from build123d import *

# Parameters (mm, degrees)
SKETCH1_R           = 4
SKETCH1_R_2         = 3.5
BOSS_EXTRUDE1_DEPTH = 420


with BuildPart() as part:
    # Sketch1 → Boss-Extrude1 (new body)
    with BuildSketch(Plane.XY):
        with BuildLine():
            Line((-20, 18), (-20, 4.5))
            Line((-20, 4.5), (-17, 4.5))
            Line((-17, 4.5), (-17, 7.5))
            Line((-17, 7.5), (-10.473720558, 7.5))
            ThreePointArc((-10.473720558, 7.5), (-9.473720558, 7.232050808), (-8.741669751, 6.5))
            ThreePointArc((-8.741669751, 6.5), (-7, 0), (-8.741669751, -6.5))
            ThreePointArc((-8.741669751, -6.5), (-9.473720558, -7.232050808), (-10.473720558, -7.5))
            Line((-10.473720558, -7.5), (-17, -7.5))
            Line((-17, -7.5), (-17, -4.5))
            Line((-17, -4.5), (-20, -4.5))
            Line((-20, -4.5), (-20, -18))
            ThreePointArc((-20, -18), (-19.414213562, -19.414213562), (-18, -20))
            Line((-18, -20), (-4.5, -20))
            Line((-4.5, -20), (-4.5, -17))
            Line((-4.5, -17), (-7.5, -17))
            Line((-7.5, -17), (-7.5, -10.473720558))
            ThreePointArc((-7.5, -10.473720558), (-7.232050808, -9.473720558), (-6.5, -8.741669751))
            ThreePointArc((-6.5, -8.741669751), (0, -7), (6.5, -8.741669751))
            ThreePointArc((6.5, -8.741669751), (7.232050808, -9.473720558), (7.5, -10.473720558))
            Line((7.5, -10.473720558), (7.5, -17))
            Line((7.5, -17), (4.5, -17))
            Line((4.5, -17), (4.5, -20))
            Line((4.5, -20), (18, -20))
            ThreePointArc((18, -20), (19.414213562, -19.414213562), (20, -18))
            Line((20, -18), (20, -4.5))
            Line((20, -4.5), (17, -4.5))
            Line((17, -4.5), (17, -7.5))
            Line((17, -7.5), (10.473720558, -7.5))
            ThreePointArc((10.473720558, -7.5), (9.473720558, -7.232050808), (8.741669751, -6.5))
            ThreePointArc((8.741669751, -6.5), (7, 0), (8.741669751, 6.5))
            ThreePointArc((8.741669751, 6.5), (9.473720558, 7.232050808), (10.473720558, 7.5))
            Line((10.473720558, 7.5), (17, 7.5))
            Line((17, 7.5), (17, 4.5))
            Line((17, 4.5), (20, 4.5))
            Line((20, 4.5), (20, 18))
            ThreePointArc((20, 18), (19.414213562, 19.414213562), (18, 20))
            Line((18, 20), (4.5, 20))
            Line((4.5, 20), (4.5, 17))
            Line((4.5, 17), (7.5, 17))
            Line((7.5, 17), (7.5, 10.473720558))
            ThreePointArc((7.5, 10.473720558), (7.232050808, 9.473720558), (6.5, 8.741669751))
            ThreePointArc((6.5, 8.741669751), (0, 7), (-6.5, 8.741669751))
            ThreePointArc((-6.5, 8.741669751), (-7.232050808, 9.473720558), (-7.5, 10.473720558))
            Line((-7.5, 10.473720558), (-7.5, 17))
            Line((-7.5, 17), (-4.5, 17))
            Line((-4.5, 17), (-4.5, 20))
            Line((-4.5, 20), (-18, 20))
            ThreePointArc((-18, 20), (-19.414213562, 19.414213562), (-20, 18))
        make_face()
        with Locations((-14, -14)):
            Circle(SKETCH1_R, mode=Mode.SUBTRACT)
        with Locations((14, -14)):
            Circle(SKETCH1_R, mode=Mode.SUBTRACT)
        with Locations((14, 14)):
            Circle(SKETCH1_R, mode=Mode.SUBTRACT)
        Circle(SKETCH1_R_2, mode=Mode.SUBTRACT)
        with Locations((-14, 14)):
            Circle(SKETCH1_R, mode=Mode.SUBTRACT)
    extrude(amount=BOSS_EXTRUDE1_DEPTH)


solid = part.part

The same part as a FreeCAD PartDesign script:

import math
import FreeCAD as App
import Part
import Sketcher

V = App.Vector

doc = App.newDocument("Part")
params = doc.addObject("Spreadsheet::Sheet", "Params")
for row, (alias, value) in enumerate([
    ("sketch1_diameter", "8 mm"),
    ("sketch1_diameter2", "7 mm"),
    ("sketch1_radius", "2 mm"),
    ("sketch1_radius2", "13 mm"),
    ("sketch1_width", "3 mm"),
    ("pad1_length", "420 mm"),
], start=1):
    params.set(f"A{row}", alias)
    params.set(f"B{row}", "=" + value)
    params.setAlias(f"B{row}", alias)

body = doc.addObject("PartDesign::Body", "Body")

# Sketch on XY plane
sketch1 = body.newObject("Sketcher::SketchObject", "Sketch")
sketch1.AttachmentSupport = (doc.getObject("XY_Plane"), [""])
sketch1.MapMode = "FlatFace"
sketch1.addGeometry(Part.LineSegment(V(-20, 18, 0), V(-20, 4.5, 0)), False)
sketch1.addGeometry(Part.LineSegment(V(-20, 4.5, 0), V(-17, 4.5, 0)), False)
sketch1.addGeometry(Part.LineSegment(V(-17, 4.5, 0), V(-17, 7.5, 0)), False)
sketch1.addGeometry(Part.LineSegment(V(-17, 7.5, 0), V(-10.473721, 7.5, 0)), False)
sketch1.addGeometry(Part.ArcOfCircle(Part.Circle(V(-10.473721, 5.5, 0), V(0, 0, 1), 2), math.radians(30), math.radians(90)), False)
sketch1.addGeometry(Part.ArcOfCircle(Part.Circle(V(-20, 0, 0), V(0, 0, 1), 13), math.radians(-30), math.radians(30)), False)
sketch1.addGeometry(Part.ArcOfCircle(Part.Circle(V(-10.473721, -5.5, 0), V(0, 0, 1), 2), math.radians(-90), math.radians(-30)), False)
sketch1.addGeometry(Part.LineSegment(V(-10.473721, -7.5, 0), V(-17, -7.5, 0)), False)
sketch1.addGeometry(Part.LineSegment(V(-17, -7.5, 0), V(-17, -4.5, 0)), False)
sketch1.addGeometry(Part.LineSegment(V(-17, -4.5, 0), V(-20, -4.5, 0)), False)
sketch1.addGeometry(Part.LineSegment(V(-20, -4.5, 0), V(-20, -18, 0)), False)
sketch1.addGeometry(Part.ArcOfCircle(Part.Circle(V(-18, -18, 0), V(0, 0, 1), 2), math.radians(-180), math.radians(-90)), False)
sketch1.addGeometry(Part.LineSegment(V(-18, -20, 0), V(-4.5, -20, 0)), False)
sketch1.addGeometry(Part.LineSegment(V(-4.5, -20, 0), V(-4.5, -17, 0)), False)
sketch1.addGeometry(Part.LineSegment(V(-4.5, -17, 0), V(-7.5, -17, 0)), False)
sketch1.addGeometry(Part.LineSegment(V(-7.5, -17, 0), V(-7.5, -10.473721, 0)), False)
sketch1.addGeometry(Part.ArcOfCircle(Part.Circle(V(-5.5, -10.473721, 0), V(0, 0, 1), 2), math.radians(120), math.radians(180)), False)
sketch1.addGeometry(Part.ArcOfCircle(Part.Circle(V(0, -20, 0), V(0, 0, 1), 13), math.radians(60), math.radians(120)), False)
sketch1.addGeometry(Part.ArcOfCircle(Part.Circle(V(5.5, -10.473721, 0), V(0, 0, 1), 2), math.radians(0), math.radians(60)), False)
sketch1.addGeometry(Part.LineSegment(V(7.5, -10.473721, 0), V(7.5, -17, 0)), False)
sketch1.addGeometry(Part.LineSegment(V(7.5, -17, 0), V(4.5, -17, 0)), False)
sketch1.addGeometry(Part.LineSegment(V(4.5, -17, 0), V(4.5, -20, 0)), False)
sketch1.addGeometry(Part.LineSegment(V(4.5, -20, 0), V(18, -20, 0)), False)
sketch1.addGeometry(Part.ArcOfCircle(Part.Circle(V(18, -18, 0), V(0, 0, 1), 2), math.radians(-90), math.radians(0)), False)
sketch1.addGeometry(Part.LineSegment(V(20, -18, 0), V(20, -4.5, 0)), False)
sketch1.addGeometry(Part.LineSegment(V(20, -4.5, 0), V(17, -4.5, 0)), False)
sketch1.addGeometry(Part.LineSegment(V(17, -4.5, 0), V(17, -7.5, 0)), False)
sketch1.addGeometry(Part.LineSegment(V(17, -7.5, 0), V(10.473721, -7.5, 0)), False)
sketch1.addGeometry(Part.ArcOfCircle(Part.Circle(V(10.473721, -5.5, 0), V(0, 0, 1), 2), math.radians(-150), math.radians(-90)), False)
sketch1.addGeometry(Part.ArcOfCircle(Part.Circle(V(20, 0, 0), V(0, 0, 1), 13), math.radians(150), math.radians(210)), False)
sketch1.addGeometry(Part.ArcOfCircle(Part.Circle(V(10.473721, 5.5, 0), V(0, 0, 1), 2), math.radians(90), math.radians(150)), False)
sketch1.addGeometry(Part.LineSegment(V(10.473721, 7.5, 0), V(17, 7.5, 0)), False)
sketch1.addGeometry(Part.LineSegment(V(17, 7.5, 0), V(17, 4.5, 0)), False)
sketch1.addGeometry(Part.LineSegment(V(17, 4.5, 0), V(20, 4.5, 0)), False)
sketch1.addGeometry(Part.LineSegment(V(20, 4.5, 0), V(20, 18, 0)), False)
sketch1.addGeometry(Part.ArcOfCircle(Part.Circle(V(18, 18, 0), V(0, 0, 1), 2), math.radians(0), math.radians(90)), False)
sketch1.addGeometry(Part.LineSegment(V(18, 20, 0), V(4.5, 20, 0)), False)
sketch1.addGeometry(Part.LineSegment(V(4.5, 20, 0), V(4.5, 17, 0)), False)
sketch1.addGeometry(Part.LineSegment(V(4.5, 17, 0), V(7.5, 17, 0)), False)
sketch1.addGeometry(Part.LineSegment(V(7.5, 17, 0), V(7.5, 10.473721, 0)), False)
sketch1.addGeometry(Part.ArcOfCircle(Part.Circle(V(5.5, 10.473721, 0), V(0, 0, 1), 2), math.radians(-60), math.radians(0)), False)
sketch1.addGeometry(Part.ArcOfCircle(Part.Circle(V(0, 20, 0), V(0, 0, 1), 13), math.radians(-120), math.radians(-60)), False)
sketch1.addGeometry(Part.ArcOfCircle(Part.Circle(V(-5.5, 10.473721, 0), V(0, 0, 1), 2), math.radians(180), math.radians(240)), False)
sketch1.addGeometry(Part.LineSegment(V(-7.5, 10.473721, 0), V(-7.5, 17, 0)), False)
sketch1.addGeometry(Part.LineSegment(V(-7.5, 17, 0), V(-4.5, 17, 0)), False)
sketch1.addGeometry(Part.LineSegment(V(-4.5, 17, 0), V(-4.5, 20, 0)), False)
sketch1.addGeometry(Part.LineSegment(V(-4.5, 20, 0), V(-18, 20, 0)), False)
sketch1.addGeometry(Part.ArcOfCircle(Part.Circle(V(-18, 18, 0), V(0, 0, 1), 2), math.radians(90), math.radians(180)), False)
sketch1.addGeometry(Part.Circle(V(-14, -14, 0), V(0, 0, 1), 4), False)
sketch1.addGeometry(Part.Circle(V(14, -14, 0), V(0, 0, 1), 4), False)
sketch1.addGeometry(Part.Circle(V(-14, 14, 0), V(0, 0, 1), 4), False)
sketch1.addGeometry(Part.Circle(V(0, 0, 0), V(0, 0, 1), 3.5), False)
sketch1.addGeometry(Part.Circle(V(14, 14, 0), V(0, 0, 1), 4), False)
sketch1.addConstraint(Sketcher.Constraint("Coincident", 0, 2, 1, 1))
sketch1.addConstraint(Sketcher.Constraint("Coincident", 1, 2, 2, 1))
sketch1.addConstraint(Sketcher.Constraint("Coincident", 2, 2, 3, 1))
sketch1.addConstraint(Sketcher.Constraint("Tangent", 3, 2, 4, 2))
sketch1.addConstraint(Sketcher.Constraint("Tangent", 4, 1, 5, 2))
sketch1.addConstraint(Sketcher.Constraint("Tangent", 5, 1, 6, 2))
sketch1.addConstraint(Sketcher.Constraint("Tangent", 6, 1, 7, 1))
sketch1.addConstraint(Sketcher.Constraint("Coincident", 7, 2, 8, 1))
sketch1.addConstraint(Sketcher.Constraint("Coincident", 8, 2, 9, 1))
sketch1.addConstraint(Sketcher.Constraint("Coincident", 9, 2, 10, 1))
sketch1.addConstraint(Sketcher.Constraint("Tangent", 10, 2, 11, 1))
sketch1.addConstraint(Sketcher.Constraint("Tangent", 11, 2, 12, 1))
sketch1.addConstraint(Sketcher.Constraint("Coincident", 12, 2, 13, 1))
sketch1.addConstraint(Sketcher.Constraint("Coincident", 13, 2, 14, 1))
sketch1.addConstraint(Sketcher.Constraint("Coincident", 14, 2, 15, 1))
sketch1.addConstraint(Sketcher.Constraint("Tangent", 15, 2, 16, 2))
sketch1.addConstraint(Sketcher.Constraint("Tangent", 16, 1, 17, 2))
sketch1.addConstraint(Sketcher.Constraint("Tangent", 17, 1, 18, 2))
sketch1.addConstraint(Sketcher.Constraint("Tangent", 18, 1, 19, 1))
sketch1.addConstraint(Sketcher.Constraint("Coincident", 19, 2, 20, 1))
sketch1.addConstraint(Sketcher.Constraint("Coincident", 20, 2, 21, 1))
sketch1.addConstraint(Sketcher.Constraint("Coincident", 21, 2, 22, 1))
sketch1.addConstraint(Sketcher.Constraint("Tangent", 22, 2, 23, 1))
sketch1.addConstraint(Sketcher.Constraint("Tangent", 23, 2, 24, 1))
sketch1.addConstraint(Sketcher.Constraint("Coincident", 24, 2, 25, 1))
sketch1.addConstraint(Sketcher.Constraint("Coincident", 25, 2, 26, 1))
sketch1.addConstraint(Sketcher.Constraint("Coincident", 26, 2, 27, 1))
sketch1.addConstraint(Sketcher.Constraint("Tangent", 27, 2, 28, 2))
sketch1.addConstraint(Sketcher.Constraint("Tangent", 28, 1, 29, 2))
sketch1.addConstraint(Sketcher.Constraint("Tangent", 29, 1, 30, 2))
sketch1.addConstraint(Sketcher.Constraint("Tangent", 30, 1, 31, 1))
sketch1.addConstraint(Sketcher.Constraint("Coincident", 31, 2, 32, 1))
sketch1.addConstraint(Sketcher.Constraint("Coincident", 32, 2, 33, 1))
sketch1.addConstraint(Sketcher.Constraint("Coincident", 33, 2, 34, 1))
sketch1.addConstraint(Sketcher.Constraint("Tangent", 34, 2, 35, 1))
sketch1.addConstraint(Sketcher.Constraint("Tangent", 35, 2, 36, 1))
sketch1.addConstraint(Sketcher.Constraint("Coincident", 36, 2, 37, 1))
sketch1.addConstraint(Sketcher.Constraint("Coincident", 37, 2, 38, 1))
sketch1.addConstraint(Sketcher.Constraint("Coincident", 38, 2, 39, 1))
sketch1.addConstraint(Sketcher.Constraint("Tangent", 39, 2, 40, 2))
sketch1.addConstraint(Sketcher.Constraint("Tangent", 40, 1, 41, 2))
sketch1.addConstraint(Sketcher.Constraint("Tangent", 41, 1, 42, 2))
sketch1.addConstraint(Sketcher.Constraint("Tangent", 42, 1, 43, 1))
sketch1.addConstraint(Sketcher.Constraint("Coincident", 43, 2, 44, 1))
sketch1.addConstraint(Sketcher.Constraint("Coincident", 44, 2, 45, 1))
sketch1.addConstraint(Sketcher.Constraint("Coincident", 45, 2, 46, 1))
sketch1.addConstraint(Sketcher.Constraint("Tangent", 46, 2, 47, 1))
sketch1.addConstraint(Sketcher.Constraint("Tangent", 47, 2, 0, 1))
sketch1.addConstraint(Sketcher.Constraint("Vertical", 0))
sketch1.addConstraint(Sketcher.Constraint("Horizontal", 1))
sketch1.addConstraint(Sketcher.Constraint("Vertical", 2))
sketch1.addConstraint(Sketcher.Constraint("Horizontal", 3))
sketch1.addConstraint(Sketcher.Constraint("Horizontal", 7))
sketch1.addConstraint(Sketcher.Constraint("Vertical", 8))
sketch1.addConstraint(Sketcher.Constraint("Horizontal", 9))
sketch1.addConstraint(Sketcher.Constraint("Vertical", 10))
sketch1.addConstraint(Sketcher.Constraint("Horizontal", 12))
sketch1.addConstraint(Sketcher.Constraint("Vertical", 13))
sketch1.addConstraint(Sketcher.Constraint("Horizontal", 14))
sketch1.addConstraint(Sketcher.Constraint("Vertical", 15))
sketch1.addConstraint(Sketcher.Constraint("Vertical", 19))
sketch1.addConstraint(Sketcher.Constraint("Horizontal", 20))
sketch1.addConstraint(Sketcher.Constraint("Vertical", 21))
sketch1.addConstraint(Sketcher.Constraint("Horizontal", 22))
sketch1.addConstraint(Sketcher.Constraint("Vertical", 24))
sketch1.addConstraint(Sketcher.Constraint("Horizontal", 25))
sketch1.addConstraint(Sketcher.Constraint("Vertical", 26))
sketch1.addConstraint(Sketcher.Constraint("Horizontal", 27))
sketch1.addConstraint(Sketcher.Constraint("Horizontal", 31))
sketch1.addConstraint(Sketcher.Constraint("Vertical", 32))
sketch1.addConstraint(Sketcher.Constraint("Horizontal", 33))
sketch1.addConstraint(Sketcher.Constraint("Vertical", 34))
sketch1.addConstraint(Sketcher.Constraint("Horizontal", 36))
sketch1.addConstraint(Sketcher.Constraint("Vertical", 37))
sketch1.addConstraint(Sketcher.Constraint("Horizontal", 38))
sketch1.addConstraint(Sketcher.Constraint("Vertical", 39))
sketch1.addConstraint(Sketcher.Constraint("Vertical", 43))
sketch1.addConstraint(Sketcher.Constraint("Horizontal", 44))
sketch1.addConstraint(Sketcher.Constraint("Vertical", 45))
sketch1.addConstraint(Sketcher.Constraint("Horizontal", 46))
sketch1.addConstraint(Sketcher.Constraint("Coincident", 51, 3, -1, 1))
sketch1.addConstraint(Sketcher.Constraint("Equal", 4, 6))
sketch1.addConstraint(Sketcher.Constraint("Equal", 6, 11))
sketch1.addConstraint(Sketcher.Constraint("Equal", 11, 16))
sketch1.addConstraint(Sketcher.Constraint("Equal", 5, 17))
sketch1.addConstraint(Sketcher.Constraint("Equal", 16, 18))
sketch1.addConstraint(Sketcher.Constraint("Equal", 18, 23))
sketch1.addConstraint(Sketcher.Constraint("Equal", 23, 28))
sketch1.addConstraint(Sketcher.Constraint("Equal", 17, 29))
sketch1.addConstraint(Sketcher.Constraint("Equal", 28, 30))
sketch1.addConstraint(Sketcher.Constraint("Equal", 30, 35))
sketch1.addConstraint(Sketcher.Constraint("Equal", 35, 40))
sketch1.addConstraint(Sketcher.Constraint("Equal", 29, 41))
sketch1.addConstraint(Sketcher.Constraint("Equal", 40, 42))
sketch1.addConstraint(Sketcher.Constraint("Equal", 42, 47))
sketch1.addConstraint(Sketcher.Constraint("Equal", 48, 49))
sketch1.addConstraint(Sketcher.Constraint("Equal", 49, 50))
sketch1.addConstraint(Sketcher.Constraint("Equal", 50, 52))
sketch1.addConstraint(Sketcher.Constraint("Symmetric", 4, 3, 28, 3, -1, 1))
sketch1.addConstraint(Sketcher.Constraint("Symmetric", 6, 3, 30, 3, -1, 1))
sketch1.addConstraint(Sketcher.Constraint("Symmetric", 11, 3, 35, 3, -1, 1))
sketch1.addConstraint(Sketcher.Constraint("Symmetric", 16, 3, 40, 3, -1, 1))
sketch1.addConstraint(Sketcher.Constraint("Symmetric", 18, 3, 42, 3, -1, 1))
sketch1.addConstraint(Sketcher.Constraint("Symmetric", 23, 3, 47, 3, -1, 1))
sketch1.addConstraint(Sketcher.Constraint("Symmetric", 49, 3, 50, 3, -1, 1))
sketch1.addConstraint(Sketcher.Constraint("Symmetric", 48, 3, 52, 3, -1, 1))
sketch1.addConstraint(Sketcher.Constraint("Symmetric", 1, 2, 25, 2, -1, 1))
sketch1.addConstraint(Sketcher.Constraint("Symmetric", 8, 2, 32, 2, -1, 1))
sketch1.addConstraint(Sketcher.Constraint("Symmetric", 13, 2, 37, 2, -1, 1))
sketch1.addConstraint(Sketcher.Constraint("Symmetric", 20, 2, 44, 2, -1, 1))
sketch1.addConstraint(Sketcher.Constraint("Symmetric", 16, 3, 18, 3, -2))
sketch1.addConstraint(Sketcher.Constraint("Symmetric", 11, 3, 23, 3, -2))
sketch1.addConstraint(Sketcher.Constraint("Symmetric", 6, 3, 28, 3, -2))
sketch1.addConstraint(Sketcher.Constraint("Symmetric", 48, 3, 49, 3, -2))
sketch1.addConstraint(Sketcher.Constraint("Symmetric", 13, 2, 20, 2, -2))
sketch1.addConstraint(Sketcher.Constraint("Symmetric", 8, 2, 25, 2, -2))
sketch1.addConstraint(Sketcher.Constraint("Horizontal", 17, 3, 11, 2))
sketch1.addConstraint(Sketcher.Constraint("Vertical", 5, 3, 0, 2))
sketch1.addConstraint(Sketcher.Constraint("Equal", 9, 14))
sketch1.addConstraint(Sketcher.Constraint("Equal", 46, 0))
sketch1.addConstraint(Sketcher.Constraint("Equal", 44, 2))
sketch1.addConstraint(Sketcher.Constraint("Equal", 8, 13))
sketch1.addConstraint(Sketcher.Constraint("Equal", 31, 15))
sketch1.addConstraint(Sketcher.Constraint("Diameter", 48, 8.0))
sketch1.addConstraint(Sketcher.Constraint("Diameter", 51, 7.0))
sketch1.addConstraint(Sketcher.Constraint("Radius", 4, 2.0))
sketch1.addConstraint(Sketcher.Constraint("Radius", 5, 13.0))
sketch1.addConstraint(Sketcher.Constraint("DistanceX", 1, 1, 1, 2, 3.0))
sketch1.addConstraint(Sketcher.Constraint("DistanceX", 12, 1, 12, 2, 13.5))
sketch1.addConstraint(Sketcher.Constraint("DistanceX", 5, 3, -1, 1, 20.0))
sketch1.addConstraint(Sketcher.Constraint("DistanceX", 48, 3, -1, 1, 14.0))
sketch1.addConstraint(Sketcher.Constraint("DistanceY", 48, 3, -1, 1, 14.0))
sketch1.setExpression("Constraints[123]", "Params.sketch1_diameter")
sketch1.setExpression("Constraints[124]", "Params.sketch1_diameter2")
sketch1.setExpression("Constraints[125]", "Params.sketch1_radius")
sketch1.setExpression("Constraints[126]", "Params.sketch1_radius2")
sketch1.setExpression("Constraints[127]", "Params.sketch1_width")
pad1 = body.newObject("PartDesign::Pad", "Pad")
pad1.Profile = sketch1
pad1.setExpression("Length", "Params.pad1_length")

doc.recompute()
